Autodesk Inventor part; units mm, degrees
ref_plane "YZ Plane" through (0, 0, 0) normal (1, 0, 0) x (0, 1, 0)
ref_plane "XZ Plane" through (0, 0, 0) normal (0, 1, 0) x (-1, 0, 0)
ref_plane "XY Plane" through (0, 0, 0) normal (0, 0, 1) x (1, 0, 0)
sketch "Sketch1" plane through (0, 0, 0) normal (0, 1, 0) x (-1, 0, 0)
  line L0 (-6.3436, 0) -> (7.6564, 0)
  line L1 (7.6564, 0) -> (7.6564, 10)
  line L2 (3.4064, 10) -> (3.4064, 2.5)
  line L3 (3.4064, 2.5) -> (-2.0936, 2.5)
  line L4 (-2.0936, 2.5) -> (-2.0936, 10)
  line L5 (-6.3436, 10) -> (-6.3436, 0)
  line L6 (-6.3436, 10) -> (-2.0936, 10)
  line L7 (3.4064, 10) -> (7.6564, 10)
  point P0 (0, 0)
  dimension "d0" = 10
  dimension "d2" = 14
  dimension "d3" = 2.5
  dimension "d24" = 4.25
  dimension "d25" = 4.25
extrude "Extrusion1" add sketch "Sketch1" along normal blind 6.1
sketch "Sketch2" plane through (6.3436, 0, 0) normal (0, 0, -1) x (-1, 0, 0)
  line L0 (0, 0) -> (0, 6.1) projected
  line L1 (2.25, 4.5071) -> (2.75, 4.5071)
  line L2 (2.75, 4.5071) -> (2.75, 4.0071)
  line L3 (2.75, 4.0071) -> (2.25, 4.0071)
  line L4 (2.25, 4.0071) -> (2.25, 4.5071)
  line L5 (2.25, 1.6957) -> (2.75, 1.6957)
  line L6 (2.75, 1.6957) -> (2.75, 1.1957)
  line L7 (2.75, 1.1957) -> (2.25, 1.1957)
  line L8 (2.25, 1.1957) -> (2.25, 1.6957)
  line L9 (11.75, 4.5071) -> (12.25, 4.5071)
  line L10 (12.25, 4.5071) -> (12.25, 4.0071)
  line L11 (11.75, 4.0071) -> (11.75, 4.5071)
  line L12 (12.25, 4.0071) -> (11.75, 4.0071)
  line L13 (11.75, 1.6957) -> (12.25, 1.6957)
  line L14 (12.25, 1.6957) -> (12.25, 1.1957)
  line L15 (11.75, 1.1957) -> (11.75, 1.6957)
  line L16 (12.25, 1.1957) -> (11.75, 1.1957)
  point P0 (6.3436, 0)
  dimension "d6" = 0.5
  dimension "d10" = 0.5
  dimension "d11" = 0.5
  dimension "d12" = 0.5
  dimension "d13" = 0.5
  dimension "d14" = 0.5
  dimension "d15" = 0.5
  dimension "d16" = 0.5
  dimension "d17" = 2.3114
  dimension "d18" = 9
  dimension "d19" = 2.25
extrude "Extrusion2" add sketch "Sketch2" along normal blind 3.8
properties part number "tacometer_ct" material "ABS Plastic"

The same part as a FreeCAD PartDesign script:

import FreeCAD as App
import Part
import Sketcher


def add_polygon(sketch, points):
    """Adds a closed chain of lines whose ends are joined by coincident constraints."""
    first, n = sketch.GeometryCount, len(points)
    for a, b in zip(points, points[1:] + points[:1]):
        sketch.addGeometry(Part.LineSegment(App.Vector(*a, 0), App.Vector(*b, 0)), False)
    for i in range(n):
        sketch.addConstraint(Sketcher.Constraint("Coincident", first + i, 2, first + (i + 1) % n, 1))

doc = App.newDocument("Part")
body = doc.addObject("PartDesign::Body", "Body")

sketch1 = doc.addObject("Sketcher::SketchObject", "Sketch")
body.addObject(sketch1)
sketch1.AttachmentSupport = (doc.XZ_Plane, [""])
sketch1.MapMode = "FlatFace"
add_polygon(sketch1, [(6.3, 10), (6.3, 0), (-7.7, 0), (-7.7, 10), (-3.4, 10), (-3.4, 2.5), (2.1, 2.5), (2.1, 10)])
sketch1.addConstraint([
    Sketcher.Constraint("Vertical", 0),
    Sketcher.Constraint("Horizontal", 1),
    Sketcher.Constraint("Vertical", 2),
    Sketcher.Constraint("Horizontal", 3),
    Sketcher.Constraint("Vertical", 4),
    Sketcher.Constraint("Horizontal", 5),
    Sketcher.Constraint("Vertical", 6),
    Sketcher.Constraint("Horizontal", 7),
    Sketcher.Constraint("PointOnObject", 0, 2, -1),
    Sketcher.Constraint("Horizontal", 3, 2, 6, 2),
    Sketcher.Constraint("Equal", 3, 7),
    Sketcher.Constraint("DistanceX", 1, 2, 1, 1, 14.0),
    Sketcher.Constraint("DistanceY", 0, 2, 0, 1, 10.0),
    Sketcher.Constraint("DistanceX", 3, 1, 3, 2, 4.25),
    Sketcher.Constraint("DistanceY", -1, 1, 4, 2, 2.5),
    Sketcher.Constraint("DistanceX", -1, 1, 0, 2, 6.3436),
])
pad1 = doc.addObject("PartDesign::Pad", "Pad")
body.addObject(pad1)
pad1.Profile = sketch1
pad1.Length = 6.1
pad1.Reversed = True

sketch2 = doc.addObject("Sketcher::SketchObject", "Sketch001")
body.addObject(sketch2)
sketch2.AttachmentSupport = (doc.XY_Plane, [""])
sketch2.MapMode = "FlatFace"
add_polygon(sketch2, [(3.6, 4.5), (4.1, 4.5), (4.1, 4), (3.6, 4)])
add_polygon(sketch2, [(3.6, 1.7), (4.1, 1.7), (4.1, 1.2), (3.6, 1.2)])
add_polygon(sketch2, [(-5.9, 4.5), (-5.4, 4.5), (-5.4, 4), (-5.9, 4)])
add_polygon(sketch2, [(-5.9, 1.7), (-5.4, 1.7), (-5.4, 1.2), (-5.9, 1.2)])
sketch2.addConstraint([
    Sketcher.Constraint("Horizontal", 0),
    Sketcher.Constraint("Vertical", 1),
    Sketcher.Constraint("Horizontal", 2),
    Sketcher.Constraint("Vertical", 3),
    Sketcher.Constraint("Horizontal", 4),
    Sketcher.Constraint("Vertical", 5),
    Sketcher.Constraint("Horizontal", 6),
    Sketcher.Constraint("Vertical", 7),
    Sketcher.Constraint("Horizontal", 8),
    Sketcher.Constraint("Vertical", 9),
    Sketcher.Constraint("Horizontal", 10),
    Sketcher.Constraint("Vertical", 11),
    Sketcher.Constraint("Horizontal", 12),
    Sketcher.Constraint("Vertical", 13),
    Sketcher.Constraint("Horizontal", 14),
    Sketcher.Constraint("Vertical", 15),
    Sketcher.Constraint("Horizontal", 3, 2, 8, 2),
    Sketcher.Constraint("Horizontal", 2, 2, 9, 2),
    Sketcher.Constraint("Horizontal", 7, 2, 12, 2),
    Sketcher.Constraint("Horizontal", 6, 2, 13, 2),
    Sketcher.Constraint("Vertical", 1, 2, 4, 2),
    Sketcher.Constraint("Vertical", 3, 2, 6, 2),
    Sketcher.Constraint("Vertical", 9, 2, 12, 2),
    Sketcher.Constraint("Vertical", 11, 2, 14, 2),
    Sketcher.Constraint("Equal", 6, 8),
    Sketcher.Constraint("Equal", 14, 1),
    Sketcher.Constraint("Equal", 3, 5),
    Sketcher.Constraint("DistanceX", 0, 1, 0, 2, 0.5),
    Sketcher.Constraint("DistanceX", 8, 2, 3, 2, 9.0),
    Sketcher.Constraint("DistanceY", 4, 2, 1, 2, 2.3114),
    Sketcher.Constraint("DistanceY", -1, 1, 0, 2, 4.507),
    Sketcher.Constraint("DistanceX", -1, 1, 0, 2, 4.0936),
])
pad2 = doc.addObject("PartDesign::Pad", "Pad001")
body.addObject(pad2)
pad2.Profile = sketch2
pad2.Length = 3.8
pad2.Reversed = True

doc.recompute()
